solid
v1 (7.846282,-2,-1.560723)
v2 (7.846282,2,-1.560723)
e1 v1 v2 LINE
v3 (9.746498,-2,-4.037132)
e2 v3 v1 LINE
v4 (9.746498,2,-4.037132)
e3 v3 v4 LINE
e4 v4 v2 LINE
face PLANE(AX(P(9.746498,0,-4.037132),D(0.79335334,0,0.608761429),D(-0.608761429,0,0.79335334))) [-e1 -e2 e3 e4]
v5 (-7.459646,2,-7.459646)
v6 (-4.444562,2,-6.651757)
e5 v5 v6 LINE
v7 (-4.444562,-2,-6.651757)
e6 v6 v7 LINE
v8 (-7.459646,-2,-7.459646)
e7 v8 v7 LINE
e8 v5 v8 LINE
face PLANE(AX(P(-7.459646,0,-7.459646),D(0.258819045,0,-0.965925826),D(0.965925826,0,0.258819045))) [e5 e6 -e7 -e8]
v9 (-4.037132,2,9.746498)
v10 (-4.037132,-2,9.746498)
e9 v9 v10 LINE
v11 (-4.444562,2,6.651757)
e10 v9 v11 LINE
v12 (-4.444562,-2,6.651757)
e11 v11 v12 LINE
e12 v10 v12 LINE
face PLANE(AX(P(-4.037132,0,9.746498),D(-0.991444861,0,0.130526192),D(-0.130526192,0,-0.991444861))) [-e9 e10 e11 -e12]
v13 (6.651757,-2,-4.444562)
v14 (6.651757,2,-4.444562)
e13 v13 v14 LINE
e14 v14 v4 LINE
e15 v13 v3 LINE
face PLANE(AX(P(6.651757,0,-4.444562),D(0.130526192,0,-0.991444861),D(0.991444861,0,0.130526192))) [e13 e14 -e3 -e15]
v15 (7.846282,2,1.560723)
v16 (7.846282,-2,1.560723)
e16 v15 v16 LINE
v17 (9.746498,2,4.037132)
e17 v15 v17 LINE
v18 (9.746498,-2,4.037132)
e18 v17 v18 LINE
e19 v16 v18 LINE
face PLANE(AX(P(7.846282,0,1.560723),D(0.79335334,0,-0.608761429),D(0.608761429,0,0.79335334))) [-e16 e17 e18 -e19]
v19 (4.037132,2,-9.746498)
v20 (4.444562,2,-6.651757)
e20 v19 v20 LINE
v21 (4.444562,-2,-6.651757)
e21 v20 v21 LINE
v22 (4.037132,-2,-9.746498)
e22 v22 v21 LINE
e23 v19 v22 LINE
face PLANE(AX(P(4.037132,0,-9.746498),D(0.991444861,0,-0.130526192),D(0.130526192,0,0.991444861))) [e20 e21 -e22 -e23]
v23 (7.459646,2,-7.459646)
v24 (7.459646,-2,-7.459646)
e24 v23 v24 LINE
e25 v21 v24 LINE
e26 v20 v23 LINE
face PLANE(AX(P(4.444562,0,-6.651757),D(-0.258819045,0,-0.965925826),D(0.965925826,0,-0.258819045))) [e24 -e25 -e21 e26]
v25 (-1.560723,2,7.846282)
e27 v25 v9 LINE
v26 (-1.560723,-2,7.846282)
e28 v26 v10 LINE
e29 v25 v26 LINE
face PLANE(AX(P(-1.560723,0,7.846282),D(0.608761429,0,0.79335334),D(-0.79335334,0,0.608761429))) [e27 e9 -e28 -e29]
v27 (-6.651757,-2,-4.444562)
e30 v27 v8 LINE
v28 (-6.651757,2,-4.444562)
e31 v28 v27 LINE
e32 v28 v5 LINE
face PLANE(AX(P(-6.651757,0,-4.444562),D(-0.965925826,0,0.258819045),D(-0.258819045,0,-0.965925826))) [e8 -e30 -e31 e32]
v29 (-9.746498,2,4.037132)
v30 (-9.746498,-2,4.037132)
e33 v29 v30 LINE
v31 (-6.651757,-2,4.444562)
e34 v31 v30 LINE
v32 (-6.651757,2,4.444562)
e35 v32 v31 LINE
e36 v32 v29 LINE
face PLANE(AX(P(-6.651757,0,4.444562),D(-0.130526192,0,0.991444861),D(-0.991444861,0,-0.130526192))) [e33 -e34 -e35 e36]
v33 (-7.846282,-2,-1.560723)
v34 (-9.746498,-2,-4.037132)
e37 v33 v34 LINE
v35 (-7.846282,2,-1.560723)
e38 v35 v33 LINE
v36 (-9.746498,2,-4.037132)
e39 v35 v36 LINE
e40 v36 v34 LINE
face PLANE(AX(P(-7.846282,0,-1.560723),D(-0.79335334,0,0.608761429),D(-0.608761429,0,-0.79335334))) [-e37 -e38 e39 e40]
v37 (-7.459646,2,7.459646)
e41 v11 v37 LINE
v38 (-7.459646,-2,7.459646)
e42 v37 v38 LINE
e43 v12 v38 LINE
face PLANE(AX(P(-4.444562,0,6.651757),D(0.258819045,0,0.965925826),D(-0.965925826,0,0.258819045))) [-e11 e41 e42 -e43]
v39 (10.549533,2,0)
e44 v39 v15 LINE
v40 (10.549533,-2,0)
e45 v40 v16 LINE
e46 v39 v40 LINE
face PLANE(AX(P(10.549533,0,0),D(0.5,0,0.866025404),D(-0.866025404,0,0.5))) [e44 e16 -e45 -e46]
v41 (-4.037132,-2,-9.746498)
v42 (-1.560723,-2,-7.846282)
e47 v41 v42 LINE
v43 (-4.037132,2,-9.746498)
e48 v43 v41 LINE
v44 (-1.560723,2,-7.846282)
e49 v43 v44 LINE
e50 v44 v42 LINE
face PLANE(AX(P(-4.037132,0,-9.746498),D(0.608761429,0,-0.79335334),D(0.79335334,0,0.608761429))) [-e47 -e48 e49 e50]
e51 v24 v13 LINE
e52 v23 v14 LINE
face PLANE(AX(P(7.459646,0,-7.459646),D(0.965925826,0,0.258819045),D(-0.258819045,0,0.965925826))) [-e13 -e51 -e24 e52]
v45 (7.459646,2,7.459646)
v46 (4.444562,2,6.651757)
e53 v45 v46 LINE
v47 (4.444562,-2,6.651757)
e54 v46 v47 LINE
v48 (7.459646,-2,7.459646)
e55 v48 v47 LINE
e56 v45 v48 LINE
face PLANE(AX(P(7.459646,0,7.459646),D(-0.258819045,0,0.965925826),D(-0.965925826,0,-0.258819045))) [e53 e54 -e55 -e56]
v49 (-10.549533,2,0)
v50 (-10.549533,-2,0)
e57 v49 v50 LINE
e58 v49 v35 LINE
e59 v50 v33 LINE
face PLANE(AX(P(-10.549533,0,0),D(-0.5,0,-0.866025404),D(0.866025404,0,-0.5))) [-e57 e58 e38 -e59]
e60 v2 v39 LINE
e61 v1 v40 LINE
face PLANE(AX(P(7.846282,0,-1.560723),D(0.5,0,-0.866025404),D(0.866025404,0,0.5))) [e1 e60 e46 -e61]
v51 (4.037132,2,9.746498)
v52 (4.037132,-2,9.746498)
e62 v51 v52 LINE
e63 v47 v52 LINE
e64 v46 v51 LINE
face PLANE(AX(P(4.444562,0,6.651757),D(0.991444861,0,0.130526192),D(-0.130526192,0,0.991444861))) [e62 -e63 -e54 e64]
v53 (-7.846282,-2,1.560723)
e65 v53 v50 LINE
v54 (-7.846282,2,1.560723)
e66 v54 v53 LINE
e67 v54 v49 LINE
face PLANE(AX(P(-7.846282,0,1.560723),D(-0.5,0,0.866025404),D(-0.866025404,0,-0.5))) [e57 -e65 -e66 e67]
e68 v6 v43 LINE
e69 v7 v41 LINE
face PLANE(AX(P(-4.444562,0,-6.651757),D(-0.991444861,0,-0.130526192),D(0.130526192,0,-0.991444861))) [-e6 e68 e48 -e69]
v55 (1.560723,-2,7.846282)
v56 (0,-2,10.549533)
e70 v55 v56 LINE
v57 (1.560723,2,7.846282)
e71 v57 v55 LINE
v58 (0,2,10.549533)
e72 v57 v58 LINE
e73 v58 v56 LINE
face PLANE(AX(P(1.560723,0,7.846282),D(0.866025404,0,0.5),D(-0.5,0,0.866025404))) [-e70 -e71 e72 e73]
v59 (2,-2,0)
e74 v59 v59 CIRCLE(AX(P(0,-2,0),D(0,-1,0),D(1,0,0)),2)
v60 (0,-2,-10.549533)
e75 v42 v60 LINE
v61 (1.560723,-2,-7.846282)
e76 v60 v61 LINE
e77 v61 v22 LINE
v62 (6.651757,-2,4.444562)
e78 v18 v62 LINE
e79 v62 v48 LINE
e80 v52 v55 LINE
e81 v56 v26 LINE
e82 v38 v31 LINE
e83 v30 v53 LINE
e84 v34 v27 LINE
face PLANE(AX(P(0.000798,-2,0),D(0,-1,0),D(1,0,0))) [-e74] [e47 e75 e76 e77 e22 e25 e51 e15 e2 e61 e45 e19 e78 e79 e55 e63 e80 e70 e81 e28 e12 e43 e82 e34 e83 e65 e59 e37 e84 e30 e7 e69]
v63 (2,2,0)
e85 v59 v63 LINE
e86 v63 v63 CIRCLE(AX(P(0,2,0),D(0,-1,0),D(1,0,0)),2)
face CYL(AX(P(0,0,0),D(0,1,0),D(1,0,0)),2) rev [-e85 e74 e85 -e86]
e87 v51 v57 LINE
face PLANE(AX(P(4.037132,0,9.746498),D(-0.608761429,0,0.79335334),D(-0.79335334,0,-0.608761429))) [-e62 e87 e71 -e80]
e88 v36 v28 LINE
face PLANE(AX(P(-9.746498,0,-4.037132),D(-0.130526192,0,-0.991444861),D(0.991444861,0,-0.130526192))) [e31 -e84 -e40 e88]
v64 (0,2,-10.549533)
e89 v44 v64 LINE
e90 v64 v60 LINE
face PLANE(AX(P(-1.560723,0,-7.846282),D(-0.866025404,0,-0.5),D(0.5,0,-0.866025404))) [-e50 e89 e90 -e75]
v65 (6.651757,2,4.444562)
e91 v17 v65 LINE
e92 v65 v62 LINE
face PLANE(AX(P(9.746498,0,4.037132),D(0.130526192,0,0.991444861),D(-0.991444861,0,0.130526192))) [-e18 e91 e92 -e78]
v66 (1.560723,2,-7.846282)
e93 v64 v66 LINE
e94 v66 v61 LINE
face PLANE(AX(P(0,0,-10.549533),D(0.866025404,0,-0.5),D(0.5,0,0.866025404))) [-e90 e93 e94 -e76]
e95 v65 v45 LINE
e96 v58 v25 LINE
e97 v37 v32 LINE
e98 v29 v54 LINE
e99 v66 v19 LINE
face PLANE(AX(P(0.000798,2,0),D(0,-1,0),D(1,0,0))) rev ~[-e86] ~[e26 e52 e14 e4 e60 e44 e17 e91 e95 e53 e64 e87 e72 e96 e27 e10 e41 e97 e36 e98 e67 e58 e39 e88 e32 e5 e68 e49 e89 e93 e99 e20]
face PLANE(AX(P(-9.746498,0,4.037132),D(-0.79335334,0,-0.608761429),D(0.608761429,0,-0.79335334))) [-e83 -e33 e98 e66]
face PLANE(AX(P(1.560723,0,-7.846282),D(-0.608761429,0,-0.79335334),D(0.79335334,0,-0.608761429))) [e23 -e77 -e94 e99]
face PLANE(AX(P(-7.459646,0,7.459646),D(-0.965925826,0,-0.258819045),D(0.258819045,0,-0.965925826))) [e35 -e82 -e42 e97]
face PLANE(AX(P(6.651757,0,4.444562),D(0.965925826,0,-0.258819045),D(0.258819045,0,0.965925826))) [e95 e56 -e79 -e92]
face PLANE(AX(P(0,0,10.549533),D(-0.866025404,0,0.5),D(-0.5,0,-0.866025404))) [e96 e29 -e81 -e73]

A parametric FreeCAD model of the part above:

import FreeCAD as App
import Part
import Sketcher
Q = App.Units.Quantity


def add_polygon(sketch, points):
    """Adds a closed chain of lines whose ends are joined by coincident constraints."""
    first, n = sketch.GeometryCount, len(points)
    for a, b in zip(points, points[1:] + points[:1]):
        sketch.addGeometry(Part.LineSegment(App.Vector(*a, 0), App.Vector(*b, 0)), False)
    for i in range(n):
        sketch.addConstraint(Sketcher.Constraint("Coincident", first + i, 2, first + (i + 1) % n, 1))

doc = App.newDocument("Part")
body = doc.addObject("PartDesign::Body", "Body")

sketch1 = body.newObject("Sketcher::SketchObject", "Sketch")
sketch1.AttachmentSupport = (doc.getObject("XZ_Plane"), [""])
sketch1.MapMode = "FlatFace"
add_polygon(sketch1, [(7.8, -1.6), (10.5, 0), (7.8, 1.6), (9.7, 4), (6.7, 4.4), (7.5, 7.5), (4.4, 6.7), (4, 9.7), (1.6, 7.8), (0, 10.5), (-1.6, 7.8), (-4, 9.7), (-4.4, 6.7), (-7.5, 7.5), (-6.7, 4.4), (-9.7, 4), (-7.8, 1.6), (-10.5, 0), (-7.8, -1.6), (-9.7, -4), (-6.7, -4.4), (-7.5, -7.5), (-4.4, -6.7), (-4, -9.7), (-1.6, -7.8), (0, -10.5), (1.6, -7.8), (4, -9.7), (4.4, -6.7), (7.5, -7.5), (6.7, -4.4), (9.7, -4)])
sketch1.addGeometry(Part.Circle(App.Vector(0, 0, 0), App.Vector(0, 0, 1), 2), False)
sketch1.addConstraint([
    Sketcher.Constraint("Coincident", 32, 3, -1, 1),
    Sketcher.Constraint("Symmetric", 0, 2, 16, 2, -1, 1),
    Sketcher.Constraint("Symmetric", 1, 2, 17, 2, -1, 1),
    Sketcher.Constraint("Symmetric", 2, 2, 18, 2, -1, 1),
    Sketcher.Constraint("Symmetric", 3, 2, 19, 2, -1, 1),
    Sketcher.Constraint("Symmetric", 4, 2, 20, 2, -1, 1),
    Sketcher.Constraint("Symmetric", 5, 2, 21, 2, -1, 1),
    Sketcher.Constraint("Symmetric", 6, 2, 22, 2, -1, 1),
    Sketcher.Constraint("Symmetric", 7, 2, 23, 2, -1, 1),
    Sketcher.Constraint("Symmetric", 8, 2, 24, 2, -1, 1),
    Sketcher.Constraint("Symmetric", 9, 2, 25, 2, -1, 1),
    Sketcher.Constraint("Symmetric", 10, 2, 26, 2, -1, 1),
    Sketcher.Constraint("Symmetric", 11, 2, 27, 2, -1, 1),
    Sketcher.Constraint("Symmetric", 12, 2, 28, 2, -1, 1),
    Sketcher.Constraint("Symmetric", 13, 2, 29, 2, -1, 1),
    Sketcher.Constraint("Symmetric", 14, 2, 30, 2, -1, 1),
    Sketcher.Constraint("Symmetric", 15, 2, 31, 2, -1, 1),
    Sketcher.Constraint("Symmetric", 7, 2, 9, 2, -2),
    Sketcher.Constraint("Symmetric", 6, 2, 10, 2, -2),
    Sketcher.Constraint("Symmetric", 5, 2, 11, 2, -2),
    Sketcher.Constraint("Symmetric", 4, 2, 12, 2, -2),
    Sketcher.Constraint("Symmetric", 3, 2, 13, 2, -2),
    Sketcher.Constraint("Symmetric", 2, 2, 14, 2, -2),
    Sketcher.Constraint("Symmetric", 1, 2, 15, 2, -2),
    Sketcher.Constraint("PointOnObject", 0, 2, -1),
    Sketcher.Constraint("PointOnObject", 8, 2, -2),
    Sketcher.Constraint("Perpendicular", 0, 8),
    Sketcher.Constraint("Perpendicular", 2, 10),
    Sketcher.Constraint("Perpendicular", 3, 11),
    Sketcher.Constraint("Perpendicular", 4, 12),
    Sketcher.Constraint("Equal", 1, 2),
    Sketcher.Constraint("Equal", 2, 3),
    Sketcher.Constraint("Equal", 3, 4),
    Sketcher.Constraint("Equal", 4, 5),
    Sketcher.Constraint("Equal", 5, 6),
    Sketcher.Constraint("Equal", 6, 7),
    Sketcher.Constraint("Equal", 7, 8),
    Sketcher.Constraint("Diameter", 32, 4.0),
    Sketcher.Constraint("Angle", 0, Q("30 deg")),
    Sketcher.Constraint("Angle", 4, Q("75 deg")),
    Sketcher.Constraint("Angle", 2, Q("52.5 deg")),
    Sketcher.Constraint("Angle", 3, Q("172.5 deg")),
    Sketcher.Constraint("DistanceY", -1, 1, 2, 2, 4.037132),
])
pad1 = body.newObject("PartDesign::Pad", "Pad")
pad1.Profile = sketch1
pad1.Length = 4
pad1.Midplane = True

doc.recompute()
